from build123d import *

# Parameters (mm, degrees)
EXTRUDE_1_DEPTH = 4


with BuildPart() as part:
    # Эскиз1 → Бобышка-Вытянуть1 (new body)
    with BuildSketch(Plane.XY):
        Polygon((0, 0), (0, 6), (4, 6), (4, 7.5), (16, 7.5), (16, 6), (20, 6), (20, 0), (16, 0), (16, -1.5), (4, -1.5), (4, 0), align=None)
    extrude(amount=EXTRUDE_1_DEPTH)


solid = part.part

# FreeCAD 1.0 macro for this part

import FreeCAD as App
import Part
import Sketcher

V = App.Vector

doc = App.newDocument("Part")
body = doc.addObject("PartDesign::Body", "Body")

# Sketch on XY plane
sketch1 = body.newObject("Sketcher::SketchObject", "Sketch")
sketch1.AttachmentSupport = (doc.getObject("XY_Plane"), [""])
sketch1.MapMode = "FlatFace"
sketch1.addGeometry(Part.LineSegment(V(0, 6, 0), V(0, 0, 0)), False)
sketch1.addGeometry(Part.LineSegment(V(0, 0, 0), V(4, 0, 0)), False)
sketch1.addGeometry(Part.LineSegment(V(4, 0, 0), V(4, -1.5, 0)), False)
sketch1.addGeometry(Part.LineSegment(V(4, -1.5, 0), V(16, -1.5, 0)), False)
sketch1.addGeometry(Part.LineSegment(V(16, -1.5, 0), V(16, 0, 0)), False)
sketch1.addGeometry(Part.LineSegment(V(16, 0, 0), V(20, 0, 0)), False)
sketch1.addGeometry(Part.LineSegment(V(20, 0, 0), V(20, 6, 0)), False)
sketch1.addGeometry(Part.LineSegment(V(20, 6, 0), V(16, 6, 0)), False)
sketch1.addGeometry(Part.LineSegment(V(16, 6, 0), V(16, 7.5, 0)), False)
sketch1.addGeometry(Part.LineSegment(V(16, 7.5, 0), V(4, 7.5, 0)), False)
sketch1.addGeometry(Part.LineSegment(V(4, 7.5, 0), V(4, 6, 0)), False)
sketch1.addGeometry(Part.LineSegment(V(4, 6, 0), V(0, 6, 0)), False)
sketch1.addConstraint(Sketcher.Constraint("Coincident", 0, 2, 1, 1))
sketch1.addConstraint(Sketcher.Constraint("Coincident", 1, 2, 2, 1))
sketch1.addConstraint(Sketcher.Constraint("Coincident", 2, 2, 3, 1))
sketch1.addConstraint(Sketcher.Constraint("Coincident", 3, 2, 4, 1))
sketch1.addConstraint(Sketcher.Constraint("Coincident", 4, 2, 5, 1))
sketch1.addConstraint(Sketcher.Constraint("Coincident", 5, 2, 6, 1))
sketch1.addConstraint(Sketcher.Constraint("Coincident", 6, 2, 7, 1))
sketch1.addConstraint(Sketcher.Constraint("Coincident", 7, 2, 8, 1))
sketch1.addConstraint(Sketcher.Constraint("Coincident", 8, 2, 9, 1))
sketch1.addConstraint(Sketcher.Constraint("Coincident", 9, 2, 10, 1))
sketch1.addConstraint(Sketcher.Constraint("Coincident", 10, 2, 11, 1))
sketch1.addConstraint(Sketcher.Constraint("Coincident", 11, 2, 0, 1))
sketch1.addConstraint(Sketcher.Constraint("Vertical", 0))
sketch1.addConstraint(Sketcher.Constraint("Horizontal", 1))
sketch1.addConstraint(Sketcher.Constraint("Vertical", 2))
sketch1.addConstraint(Sketcher.Constraint("Horizontal", 3))
sketch1.addConstraint(Sketcher.Constraint("Vertical", 4))
sketch1.addConstraint(Sketcher.Constraint("Horizontal", 5))
sketch1.addConstraint(Sketcher.Constraint("Vertical", 6))
sketch1.addConstraint(Sketcher.Constraint("Horizontal", 7))
sketch1.addConstraint(Sketcher.Constraint("Vertical", 8))
sketch1.addConstraint(Sketcher.Constraint("Horizontal", 9))
sketch1.addConstraint(Sketcher.Constraint("Vertical", 10))
sketch1.addConstraint(Sketcher.Constraint("Horizontal", 11))
sketch1.addConstraint(Sketcher.Constraint("Coincident", 0, 2, -1, 1))
sketch1.addConstraint(Sketcher.Constraint("PointOnObject", 4, 2, -1))
sketch1.addConstraint(Sketcher.Constraint("Horizontal", 7, 2, 10, 2))
sketch1.addConstraint(Sketcher.Constraint("Vertical", 4, 2, 7, 2))
sketch1.addConstraint(Sketcher.Constraint("Vertical", 2, 2, 9, 2))
sketch1.addConstraint(Sketcher.Constraint("Equal", 1, 5))
sketch1.addConstraint(Sketcher.Constraint("Equal", 4, 8))
sketch1.addConstraint(Sketcher.Constraint("DistanceX", 1, 1, 1, 2, 4.0))
sketch1.addConstraint(Sketcher.Constraint("DistanceX", 3, 1, 3, 2, 12.0))
sketch1.addConstraint(Sketcher.Constraint("DistanceY", 0, 2, 0, 1, 6.0))
sketch1.addConstraint(Sketcher.Constraint("DistanceY", 2, 2, 2, 1, 1.5))
pad1 = body.newObject("PartDesign::Pad", "Pad")
pad1.Profile = sketch1
pad1.Length = 4

doc.recompute()
